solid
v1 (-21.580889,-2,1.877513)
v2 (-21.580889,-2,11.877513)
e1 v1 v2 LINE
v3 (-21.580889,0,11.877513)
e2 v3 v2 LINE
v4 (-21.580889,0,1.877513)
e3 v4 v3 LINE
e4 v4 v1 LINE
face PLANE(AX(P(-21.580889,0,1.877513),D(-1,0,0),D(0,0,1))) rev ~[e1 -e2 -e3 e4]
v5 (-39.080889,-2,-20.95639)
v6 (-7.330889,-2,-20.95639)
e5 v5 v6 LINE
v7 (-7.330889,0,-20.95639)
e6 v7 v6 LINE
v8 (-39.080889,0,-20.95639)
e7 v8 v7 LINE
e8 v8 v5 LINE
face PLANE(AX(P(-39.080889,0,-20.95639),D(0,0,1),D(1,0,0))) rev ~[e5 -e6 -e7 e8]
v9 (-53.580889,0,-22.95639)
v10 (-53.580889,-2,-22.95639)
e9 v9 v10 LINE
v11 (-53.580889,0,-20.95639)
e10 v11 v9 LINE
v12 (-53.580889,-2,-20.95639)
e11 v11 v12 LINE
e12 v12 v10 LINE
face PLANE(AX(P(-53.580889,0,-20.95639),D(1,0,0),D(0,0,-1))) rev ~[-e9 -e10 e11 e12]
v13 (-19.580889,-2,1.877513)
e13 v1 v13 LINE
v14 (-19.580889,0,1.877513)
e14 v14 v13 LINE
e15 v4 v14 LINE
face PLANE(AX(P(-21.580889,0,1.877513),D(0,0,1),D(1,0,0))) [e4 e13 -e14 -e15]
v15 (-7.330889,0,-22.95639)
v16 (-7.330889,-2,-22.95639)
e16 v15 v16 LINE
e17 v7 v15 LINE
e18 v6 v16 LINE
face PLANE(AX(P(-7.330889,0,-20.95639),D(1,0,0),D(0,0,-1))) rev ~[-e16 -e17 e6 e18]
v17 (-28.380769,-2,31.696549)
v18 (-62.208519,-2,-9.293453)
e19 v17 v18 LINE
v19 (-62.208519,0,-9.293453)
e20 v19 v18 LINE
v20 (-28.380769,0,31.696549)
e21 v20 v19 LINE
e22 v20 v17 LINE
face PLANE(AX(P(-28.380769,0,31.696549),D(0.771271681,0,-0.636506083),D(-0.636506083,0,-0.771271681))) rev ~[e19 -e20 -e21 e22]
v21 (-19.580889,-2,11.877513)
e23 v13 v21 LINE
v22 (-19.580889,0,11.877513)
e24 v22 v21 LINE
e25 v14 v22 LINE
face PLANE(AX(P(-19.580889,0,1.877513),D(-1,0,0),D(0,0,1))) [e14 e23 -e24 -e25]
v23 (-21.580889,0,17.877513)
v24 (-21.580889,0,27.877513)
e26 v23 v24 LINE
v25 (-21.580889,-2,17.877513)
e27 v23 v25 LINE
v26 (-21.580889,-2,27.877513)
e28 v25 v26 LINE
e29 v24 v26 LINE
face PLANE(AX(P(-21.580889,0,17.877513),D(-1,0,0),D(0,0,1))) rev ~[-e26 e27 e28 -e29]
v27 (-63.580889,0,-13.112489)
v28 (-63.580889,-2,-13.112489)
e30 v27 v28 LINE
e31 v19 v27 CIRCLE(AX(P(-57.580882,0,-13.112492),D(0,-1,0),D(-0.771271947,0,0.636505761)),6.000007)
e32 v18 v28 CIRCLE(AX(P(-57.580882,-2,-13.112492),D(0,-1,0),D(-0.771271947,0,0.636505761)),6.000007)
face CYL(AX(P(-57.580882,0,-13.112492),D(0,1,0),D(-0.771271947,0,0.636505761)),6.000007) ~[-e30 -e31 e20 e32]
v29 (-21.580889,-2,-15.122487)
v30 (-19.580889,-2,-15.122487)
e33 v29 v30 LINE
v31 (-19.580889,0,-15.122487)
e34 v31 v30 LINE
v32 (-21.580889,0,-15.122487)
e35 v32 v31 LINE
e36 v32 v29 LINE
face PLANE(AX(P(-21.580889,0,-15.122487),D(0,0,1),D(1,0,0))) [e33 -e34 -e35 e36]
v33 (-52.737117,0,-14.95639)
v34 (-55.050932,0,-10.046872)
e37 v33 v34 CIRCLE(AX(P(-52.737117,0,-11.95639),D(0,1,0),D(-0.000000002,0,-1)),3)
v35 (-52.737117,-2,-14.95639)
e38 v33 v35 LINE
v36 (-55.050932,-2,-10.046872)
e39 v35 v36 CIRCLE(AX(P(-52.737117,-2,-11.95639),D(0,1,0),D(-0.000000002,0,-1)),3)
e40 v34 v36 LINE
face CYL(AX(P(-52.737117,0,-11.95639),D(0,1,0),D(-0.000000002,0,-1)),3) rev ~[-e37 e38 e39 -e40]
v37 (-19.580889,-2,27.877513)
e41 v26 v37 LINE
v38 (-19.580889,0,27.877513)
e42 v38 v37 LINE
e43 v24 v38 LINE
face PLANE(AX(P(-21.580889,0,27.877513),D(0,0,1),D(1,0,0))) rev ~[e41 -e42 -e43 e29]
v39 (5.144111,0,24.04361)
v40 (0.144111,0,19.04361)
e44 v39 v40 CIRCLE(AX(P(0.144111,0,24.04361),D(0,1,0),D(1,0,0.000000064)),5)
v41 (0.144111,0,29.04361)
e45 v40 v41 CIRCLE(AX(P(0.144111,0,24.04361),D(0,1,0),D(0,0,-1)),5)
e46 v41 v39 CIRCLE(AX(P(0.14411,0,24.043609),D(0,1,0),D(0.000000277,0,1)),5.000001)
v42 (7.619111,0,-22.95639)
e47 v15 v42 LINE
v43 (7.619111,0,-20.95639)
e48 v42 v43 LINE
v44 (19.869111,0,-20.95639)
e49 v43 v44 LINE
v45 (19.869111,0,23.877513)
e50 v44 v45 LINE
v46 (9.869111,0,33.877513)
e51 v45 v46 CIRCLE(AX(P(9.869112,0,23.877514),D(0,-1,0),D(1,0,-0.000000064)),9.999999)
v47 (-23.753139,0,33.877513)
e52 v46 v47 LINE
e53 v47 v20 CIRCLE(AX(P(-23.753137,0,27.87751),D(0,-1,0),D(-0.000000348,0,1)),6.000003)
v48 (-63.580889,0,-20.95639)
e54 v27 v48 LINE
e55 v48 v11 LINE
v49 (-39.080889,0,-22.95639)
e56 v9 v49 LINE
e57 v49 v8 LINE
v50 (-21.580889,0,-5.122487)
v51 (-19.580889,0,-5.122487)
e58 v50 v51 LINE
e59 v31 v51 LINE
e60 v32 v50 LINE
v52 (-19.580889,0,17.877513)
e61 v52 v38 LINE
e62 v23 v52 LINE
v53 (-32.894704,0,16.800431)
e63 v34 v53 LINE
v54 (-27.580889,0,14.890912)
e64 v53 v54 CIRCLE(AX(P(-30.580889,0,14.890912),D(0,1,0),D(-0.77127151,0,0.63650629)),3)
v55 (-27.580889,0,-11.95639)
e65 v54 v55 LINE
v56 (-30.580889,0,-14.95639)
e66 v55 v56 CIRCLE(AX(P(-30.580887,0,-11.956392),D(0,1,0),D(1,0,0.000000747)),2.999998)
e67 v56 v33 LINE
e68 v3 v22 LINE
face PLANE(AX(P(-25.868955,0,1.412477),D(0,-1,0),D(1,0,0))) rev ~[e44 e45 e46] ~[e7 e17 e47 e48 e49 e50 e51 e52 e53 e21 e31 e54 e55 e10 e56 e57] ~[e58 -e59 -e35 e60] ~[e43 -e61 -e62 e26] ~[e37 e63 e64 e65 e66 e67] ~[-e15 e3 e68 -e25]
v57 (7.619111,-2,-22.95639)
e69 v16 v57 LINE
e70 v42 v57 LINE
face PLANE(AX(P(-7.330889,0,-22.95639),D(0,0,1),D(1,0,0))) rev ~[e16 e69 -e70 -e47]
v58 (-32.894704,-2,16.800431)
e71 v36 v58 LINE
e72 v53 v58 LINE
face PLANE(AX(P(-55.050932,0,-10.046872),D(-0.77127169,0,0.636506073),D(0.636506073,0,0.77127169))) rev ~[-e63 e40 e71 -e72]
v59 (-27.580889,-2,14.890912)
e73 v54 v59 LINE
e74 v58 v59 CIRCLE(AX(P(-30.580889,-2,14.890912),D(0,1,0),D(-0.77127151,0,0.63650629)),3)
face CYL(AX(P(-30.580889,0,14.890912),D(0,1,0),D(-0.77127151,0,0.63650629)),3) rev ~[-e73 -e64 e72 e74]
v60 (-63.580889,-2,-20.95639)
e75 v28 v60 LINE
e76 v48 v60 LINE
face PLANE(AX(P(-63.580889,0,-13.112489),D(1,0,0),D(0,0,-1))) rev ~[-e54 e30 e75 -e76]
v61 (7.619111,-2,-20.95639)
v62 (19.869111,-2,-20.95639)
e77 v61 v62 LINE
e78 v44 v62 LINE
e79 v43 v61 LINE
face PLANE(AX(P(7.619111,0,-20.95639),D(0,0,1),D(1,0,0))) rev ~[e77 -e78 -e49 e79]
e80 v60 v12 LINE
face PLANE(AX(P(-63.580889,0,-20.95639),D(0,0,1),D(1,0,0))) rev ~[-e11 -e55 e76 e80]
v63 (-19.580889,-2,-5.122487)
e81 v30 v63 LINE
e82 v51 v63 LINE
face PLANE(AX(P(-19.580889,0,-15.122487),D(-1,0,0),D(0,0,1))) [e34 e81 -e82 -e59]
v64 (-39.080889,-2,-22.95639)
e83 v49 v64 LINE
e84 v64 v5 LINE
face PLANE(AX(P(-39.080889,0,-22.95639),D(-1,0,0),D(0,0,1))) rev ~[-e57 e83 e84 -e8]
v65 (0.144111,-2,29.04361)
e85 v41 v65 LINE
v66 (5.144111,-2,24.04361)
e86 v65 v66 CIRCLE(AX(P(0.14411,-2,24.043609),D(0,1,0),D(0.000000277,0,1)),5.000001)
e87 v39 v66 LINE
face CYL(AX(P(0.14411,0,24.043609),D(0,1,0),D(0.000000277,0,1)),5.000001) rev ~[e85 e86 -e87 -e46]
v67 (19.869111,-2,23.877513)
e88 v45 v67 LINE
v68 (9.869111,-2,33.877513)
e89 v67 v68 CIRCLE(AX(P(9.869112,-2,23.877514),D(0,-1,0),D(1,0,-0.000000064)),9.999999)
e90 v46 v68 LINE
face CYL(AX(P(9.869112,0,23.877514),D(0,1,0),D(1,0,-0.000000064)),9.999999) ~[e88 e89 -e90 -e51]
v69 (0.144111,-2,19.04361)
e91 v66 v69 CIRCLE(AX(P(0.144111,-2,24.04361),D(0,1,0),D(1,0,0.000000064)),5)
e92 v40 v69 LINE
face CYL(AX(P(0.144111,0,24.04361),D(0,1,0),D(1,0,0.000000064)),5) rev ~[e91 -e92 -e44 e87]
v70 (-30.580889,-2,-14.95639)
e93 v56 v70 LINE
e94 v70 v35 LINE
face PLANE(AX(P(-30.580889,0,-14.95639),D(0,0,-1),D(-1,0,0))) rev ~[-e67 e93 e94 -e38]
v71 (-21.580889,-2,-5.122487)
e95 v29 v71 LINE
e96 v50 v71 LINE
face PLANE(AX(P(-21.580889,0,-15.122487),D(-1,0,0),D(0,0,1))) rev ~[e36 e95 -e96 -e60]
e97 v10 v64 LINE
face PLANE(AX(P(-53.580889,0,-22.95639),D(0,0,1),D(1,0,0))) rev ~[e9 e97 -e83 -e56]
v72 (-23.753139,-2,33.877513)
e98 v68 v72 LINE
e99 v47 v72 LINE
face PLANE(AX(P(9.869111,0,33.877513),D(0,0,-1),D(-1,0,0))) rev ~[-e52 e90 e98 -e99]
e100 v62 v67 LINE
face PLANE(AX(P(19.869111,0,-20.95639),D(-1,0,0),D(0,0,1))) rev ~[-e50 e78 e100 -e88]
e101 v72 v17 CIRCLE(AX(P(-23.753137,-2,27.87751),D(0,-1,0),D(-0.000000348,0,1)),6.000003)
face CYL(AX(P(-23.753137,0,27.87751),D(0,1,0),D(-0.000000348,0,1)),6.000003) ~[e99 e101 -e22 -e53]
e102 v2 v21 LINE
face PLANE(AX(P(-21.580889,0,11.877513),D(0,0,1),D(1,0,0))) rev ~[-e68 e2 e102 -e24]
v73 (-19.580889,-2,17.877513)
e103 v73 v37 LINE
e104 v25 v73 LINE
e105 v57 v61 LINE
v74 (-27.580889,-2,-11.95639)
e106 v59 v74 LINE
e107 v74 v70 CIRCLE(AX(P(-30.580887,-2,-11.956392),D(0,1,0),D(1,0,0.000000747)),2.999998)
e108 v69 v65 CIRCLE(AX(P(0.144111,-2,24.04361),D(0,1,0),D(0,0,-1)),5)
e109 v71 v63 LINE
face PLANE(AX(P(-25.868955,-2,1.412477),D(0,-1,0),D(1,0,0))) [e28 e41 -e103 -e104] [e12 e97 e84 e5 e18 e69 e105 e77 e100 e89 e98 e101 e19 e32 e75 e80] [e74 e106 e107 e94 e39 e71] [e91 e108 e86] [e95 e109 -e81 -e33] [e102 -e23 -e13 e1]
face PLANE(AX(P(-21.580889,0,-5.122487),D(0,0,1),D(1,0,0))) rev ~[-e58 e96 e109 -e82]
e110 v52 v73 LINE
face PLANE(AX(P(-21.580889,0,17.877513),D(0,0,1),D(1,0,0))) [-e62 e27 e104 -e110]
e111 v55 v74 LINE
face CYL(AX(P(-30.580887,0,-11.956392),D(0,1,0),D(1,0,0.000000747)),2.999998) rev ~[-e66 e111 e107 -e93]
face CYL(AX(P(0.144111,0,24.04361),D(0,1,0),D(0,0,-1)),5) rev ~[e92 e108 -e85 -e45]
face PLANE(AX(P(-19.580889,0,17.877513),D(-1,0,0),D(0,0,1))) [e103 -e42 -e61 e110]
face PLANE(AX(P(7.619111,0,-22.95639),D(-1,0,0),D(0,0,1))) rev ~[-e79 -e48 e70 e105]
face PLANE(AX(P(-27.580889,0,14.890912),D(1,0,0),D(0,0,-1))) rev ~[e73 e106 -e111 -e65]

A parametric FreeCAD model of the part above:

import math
import FreeCAD as App
import Part
import Sketcher
Q = App.Units.Quantity


def add_polygon(sketch, points):
    """Adds a closed chain of lines whose ends are joined by coincident constraints."""
    first, n = sketch.GeometryCount, len(points)
    for a, b in zip(points, points[1:] + points[:1]):
        sketch.addGeometry(Part.LineSegment(App.Vector(*a, 0), App.Vector(*b, 0)), False)
    for i in range(n):
        sketch.addConstraint(Sketcher.Constraint("Coincident", first + i, 2, first + (i + 1) % n, 1))

doc = App.newDocument("Part")
body = doc.addObject("PartDesign::Body", "Body")

# Sketch on XZ plane
sketch1 = body.newObject("Sketcher::SketchObject", "Sketch")
sketch1.AttachmentSupport = (doc.getObject("XZ_Plane"), [""])
sketch1.MapMode = "FlatFace"
sketch1.addGeometry(Part.ArcOfCircle(Part.Circle(App.Vector(-23.8, 27.9, 0), App.Vector(0, 0, 1), 6), math.radians(90), math.radians(140)), False)  # 0
sketch1.addGeometry(Part.LineSegment(App.Vector(-28.4, 31.7, 0), App.Vector(-62.2, -9.3, 0)), False)  # 1
sketch1.addGeometry(Part.ArcOfCircle(Part.Circle(App.Vector(-57.6, -13.1, 0), App.Vector(0, 0, 1), 6), math.radians(140), math.radians(180)), False)  # 2
sketch1.addGeometry(Part.LineSegment(App.Vector(-63.6, -13.1, 0), App.Vector(-63.6, -21, 0)), False)  # 3
sketch1.addGeometry(Part.LineSegment(App.Vector(-63.6, -21, 0), App.Vector(-53.6, -21, 0)), False)  # 4
sketch1.addGeometry(Part.LineSegment(App.Vector(-53.6, -21, 0), App.Vector(-53.6, -23, 0)), False)  # 5
sketch1.addGeometry(Part.LineSegment(App.Vector(-53.6, -23, 0), App.Vector(-39.1, -23, 0)), False)  # 6
sketch1.addGeometry(Part.LineSegment(App.Vector(-39.1, -23, 0), App.Vector(-39.1, -21, 0)), False)  # 7
sketch1.addGeometry(Part.LineSegment(App.Vector(-39.1, -21, 0), App.Vector(-7.3, -21, 0)), False)  # 8
sketch1.addGeometry(Part.LineSegment(App.Vector(-7.3, -21, 0), App.Vector(-7.3, -23, 0)), False)  # 9
sketch1.addGeometry(Part.LineSegment(App.Vector(-7.3, -23, 0), App.Vector(7.6, -23, 0)), False)  # 10
sketch1.addGeometry(Part.LineSegment(App.Vector(7.6, -23, 0), App.Vector(7.6, -21, 0)), False)  # 11
sketch1.addGeometry(Part.LineSegment(App.Vector(7.6, -21, 0), App.Vector(19.9, -21, 0)), False)  # 12
sketch1.addGeometry(Part.LineSegment(App.Vector(19.9, -21, 0), App.Vector(19.9, 23.9, 0)), False)  # 13
sketch1.addGeometry(Part.ArcOfCircle(Part.Circle(App.Vector(9.9, 23.9, 0), App.Vector(0, 0, 1), 10), math.radians(0), math.radians(90)), False)  # 14
sketch1.addGeometry(Part.LineSegment(App.Vector(9.9, 33.9, 0), App.Vector(-23.8, 33.9, 0)), False)  # 15
sketch1.addGeometry(Part.ArcOfCircle(Part.Circle(App.Vector(0.1, 24, 0), App.Vector(0, 0, 1), 5), math.radians(90), math.radians(270)), False)  # 16
sketch1.addGeometry(Part.ArcOfCircle(Part.Circle(App.Vector(0.1, 24, 0), App.Vector(0, 0, 1), 5), math.radians(0), math.radians(90)), False)  # 17
sketch1.addGeometry(Part.ArcOfCircle(Part.Circle(App.Vector(0.1, 24, 0), App.Vector(0, 0, 1), 5), math.radians(-90), math.radians(0)), False)  # 18
sketch1.addGeometry(Part.ArcOfCircle(Part.Circle(App.Vector(-30.6, -12, 0), App.Vector(0, 0, 1), 3), math.radians(-90), math.radians(0)), False)  # 19
sketch1.addGeometry(Part.LineSegment(App.Vector(-30.6, -15, 0), App.Vector(-52.7, -15, 0)), False)  # 20
sketch1.addGeometry(Part.ArcOfCircle(Part.Circle(App.Vector(-52.7, -12, 0), App.Vector(0, 0, 1), 3), math.radians(140), math.radians(270)), False)  # 21
sketch1.addGeometry(Part.LineSegment(App.Vector(-55.1, -10, 0), App.Vector(-32.9, 16.8, 0)), False)  # 22
sketch1.addGeometry(Part.ArcOfCircle(Part.Circle(App.Vector(-30.6, 14.9, 0), App.Vector(0, 0, 1), 3), math.radians(0), math.radians(140)), False)  # 23
sketch1.addGeometry(Part.LineSegment(App.Vector(-27.6, 14.9, 0), App.Vector(-27.6, -12, 0)), False)  # 24
add_polygon(sketch1, [(-19.6, -15.1), (-21.6, -15.1), (-21.6, -5.1), (-19.6, -5.1)])  # lines 25-28
add_polygon(sketch1, [(-19.6, 1.9), (-21.6, 1.9), (-21.6, 11.9), (-19.6, 11.9)])  # lines 29-32
add_polygon(sketch1, [(-19.6, 17.9), (-21.6, 17.9), (-21.6, 27.9), (-19.6, 27.9)])  # lines 33-36
sketch1.addConstraint([
    Sketcher.Constraint("Tangent", 0, 2, 1, 1),
    Sketcher.Constraint("Tangent", 1, 2, 2, 1),
    Sketcher.Constraint("Tangent", 2, 2, 3, 1),
    Sketcher.Constraint("Coincident", 3, 2, 4, 1),
    Sketcher.Constraint("Coincident", 4, 2, 5, 1),
    Sketcher.Constraint("Coincident", 5, 2, 6, 1),
    Sketcher.Constraint("Coincident", 6, 2, 7, 1),
    Sketcher.Constraint("Coincident", 7, 2, 8, 1),
    Sketcher.Constraint("Coincident", 8, 2, 9, 1),
    Sketcher.Constraint("Coincident", 9, 2, 10, 1),
    Sketcher.Constraint("Coincident", 10, 2, 11, 1),
    Sketcher.Constraint("Coincident", 11, 2, 12, 1),
    Sketcher.Constraint("Coincident", 12, 2, 13, 1),
    Sketcher.Constraint("Tangent", 13, 2, 14, 1),
    Sketcher.Constraint("Tangent", 14, 2, 15, 1),
    Sketcher.Constraint("Tangent", 15, 2, 0, 1),
    Sketcher.Constraint("Tangent", 16, 1, 17, 2),
    Sketcher.Constraint("Tangent", 17, 1, 18, 2),
    Sketcher.Constraint("Tangent", 18, 1, 16, 2),
    Sketcher.Constraint("Tangent", 19, 1, 20, 1),
    Sketcher.Constraint("Tangent", 20, 2, 21, 2),
    Sketcher.Constraint("Tangent", 21, 1, 22, 1),
    Sketcher.Constraint("Tangent", 22, 2, 23, 2),
    Sketcher.Constraint("Tangent", 23, 1, 24, 1),
    Sketcher.Constraint("Tangent", 24, 2, 19, 2),
    Sketcher.Constraint("Vertical", 3),
    Sketcher.Constraint("Horizontal", 4),
    Sketcher.Constraint("Vertical", 5),
    Sketcher.Constraint("Horizontal", 6),
    Sketcher.Constraint("Vertical", 7),
    Sketcher.Constraint("Horizontal", 8),
    Sketcher.Constraint("Vertical", 9),
    Sketcher.Constraint("Horizontal", 10),
    Sketcher.Constraint("Vertical", 11),
    Sketcher.Constraint("Horizontal", 12),
    Sketcher.Constraint("Vertical", 13),
    Sketcher.Constraint("Horizontal", 15),
    Sketcher.Constraint("Horizontal", 20),
    Sketcher.Constraint("Vertical", 24),
    Sketcher.Constraint("Horizontal", 25),
    Sketcher.Constraint("Vertical", 26),
    Sketcher.Constraint("Horizontal", 27),
    Sketcher.Constraint("Vertical", 28),
    Sketcher.Constraint("Horizontal", 29),
    Sketcher.Constraint("Vertical", 30),
    Sketcher.Constraint("Horizontal", 31),
    Sketcher.Constraint("Vertical", 32),
    Sketcher.Constraint("Horizontal", 33),
    Sketcher.Constraint("Vertical", 34),
    Sketcher.Constraint("Horizontal", 35),
    Sketcher.Constraint("Vertical", 36),
    Sketcher.Constraint("Equal", 21, 23),
    Sketcher.Constraint("Parallel", 1, 22),
    Sketcher.Constraint("Horizontal", 4, 2, 7, 2),
    Sketcher.Constraint("Horizontal", 6, 2, 9, 2),
    Sketcher.Constraint("Horizontal", 8, 2, 11, 2),
    Sketcher.Constraint("Horizontal", 18, 3, 17, 1),
    Sketcher.Constraint("Horizontal", 21, 3, 24, 2),
    Sketcher.Constraint("Vertical", 18, 3, 16, 1),
    Sketcher.Constraint("Vertical", 16, 1, 18, 1),
    Sketcher.Constraint("Vertical", 26, 2, 29, 2),
    Sketcher.Constraint("Vertical", 28, 2, 31, 2),
    Sketcher.Constraint("Vertical", 30, 2, 33, 2),
    Sketcher.Constraint("Vertical", 32, 2, 35, 2),
    Sketcher.Constraint("Equal", 35, 5),
    Sketcher.Constraint("Equal", 4, 26),
    Sketcher.Constraint("Equal", 28, 30),
    Sketcher.Constraint("Equal", 32, 34),
    Sketcher.Constraint("Radius", 14, Q("9.999999 mm")),
    Sketcher.Constraint("Radius", 16, Q("5 mm")),
    Sketcher.Constraint("Radius", 21, Q("3 mm")),
    Sketcher.Constraint("DistanceX", 4, 1, 4, 2, Q("10 mm")),
    Sketcher.Constraint("DistanceX", 25, 2, 25, 1, Q("2 mm")),
    Sketcher.Constraint("DistanceX", 6, 1, 6, 2, Q("14.5 mm")),
    Sketcher.Constraint("DistanceY", 19, 3, 17, 3, Q("36.000001 mm")),
    Sketcher.Constraint("DistanceX", 2, 2, 23, 3, Q("33 mm")),
    Sketcher.Constraint("DistanceY", 3, 2, 21, 3, Q("9 mm")),
    Sketcher.Constraint("DistanceX", 24, 2, 25, 2, Q("6 mm")),
    Sketcher.Constraint("DistanceY", 26, 2, 29, 2, Q("7 mm")),
    Sketcher.Constraint("DistanceY", 30, 2, 33, 2, Q("6 mm")),
    Sketcher.Constraint("DistanceY", 34, 2, 15, 2, Q("6 mm")),
    Sketcher.Constraint("DistanceX", 8, 1, 8, 2, Q("31.75 mm")),
    Sketcher.Constraint("DistanceX", 10, 1, 10, 2, Q("14.95 mm")),
    Sketcher.Constraint("DistanceX", 12, 1, 12, 2, Q("12.25 mm")),
    Sketcher.Constraint("DistanceY", 2, 3, 0, 3, Q("40.990002 mm")),
    Sketcher.Constraint("DistanceY", 3, 2, 3, 1, Q("7.843901 mm")),
    Sketcher.Constraint("DistanceY", 24, 2, 24, 1, Q("26.847302 mm")),
    Sketcher.Constraint("Radius", 0, Q("6.000003 mm")),
    Sketcher.Constraint("Radius", 2, Q("6.000007 mm")),
    Sketcher.Constraint("DistanceX", 16, 3, 14, 3, Q("9.725001 mm")),
    Sketcher.Constraint("DistanceX", 15, 2, 15, 1, Q("33.62225 mm")),
    Sketcher.Constraint("DistanceY", -1, 1, 0, 3, Q("27.87751 mm")),
    Sketcher.Constraint("DistanceX", 2, 3, -1, 1, Q("57.580882 mm")),
])
pad1 = body.newObject("PartDesign::Pad", "Pad")
pad1.Profile = sketch1
pad1.Length = 2

doc.recompute()
